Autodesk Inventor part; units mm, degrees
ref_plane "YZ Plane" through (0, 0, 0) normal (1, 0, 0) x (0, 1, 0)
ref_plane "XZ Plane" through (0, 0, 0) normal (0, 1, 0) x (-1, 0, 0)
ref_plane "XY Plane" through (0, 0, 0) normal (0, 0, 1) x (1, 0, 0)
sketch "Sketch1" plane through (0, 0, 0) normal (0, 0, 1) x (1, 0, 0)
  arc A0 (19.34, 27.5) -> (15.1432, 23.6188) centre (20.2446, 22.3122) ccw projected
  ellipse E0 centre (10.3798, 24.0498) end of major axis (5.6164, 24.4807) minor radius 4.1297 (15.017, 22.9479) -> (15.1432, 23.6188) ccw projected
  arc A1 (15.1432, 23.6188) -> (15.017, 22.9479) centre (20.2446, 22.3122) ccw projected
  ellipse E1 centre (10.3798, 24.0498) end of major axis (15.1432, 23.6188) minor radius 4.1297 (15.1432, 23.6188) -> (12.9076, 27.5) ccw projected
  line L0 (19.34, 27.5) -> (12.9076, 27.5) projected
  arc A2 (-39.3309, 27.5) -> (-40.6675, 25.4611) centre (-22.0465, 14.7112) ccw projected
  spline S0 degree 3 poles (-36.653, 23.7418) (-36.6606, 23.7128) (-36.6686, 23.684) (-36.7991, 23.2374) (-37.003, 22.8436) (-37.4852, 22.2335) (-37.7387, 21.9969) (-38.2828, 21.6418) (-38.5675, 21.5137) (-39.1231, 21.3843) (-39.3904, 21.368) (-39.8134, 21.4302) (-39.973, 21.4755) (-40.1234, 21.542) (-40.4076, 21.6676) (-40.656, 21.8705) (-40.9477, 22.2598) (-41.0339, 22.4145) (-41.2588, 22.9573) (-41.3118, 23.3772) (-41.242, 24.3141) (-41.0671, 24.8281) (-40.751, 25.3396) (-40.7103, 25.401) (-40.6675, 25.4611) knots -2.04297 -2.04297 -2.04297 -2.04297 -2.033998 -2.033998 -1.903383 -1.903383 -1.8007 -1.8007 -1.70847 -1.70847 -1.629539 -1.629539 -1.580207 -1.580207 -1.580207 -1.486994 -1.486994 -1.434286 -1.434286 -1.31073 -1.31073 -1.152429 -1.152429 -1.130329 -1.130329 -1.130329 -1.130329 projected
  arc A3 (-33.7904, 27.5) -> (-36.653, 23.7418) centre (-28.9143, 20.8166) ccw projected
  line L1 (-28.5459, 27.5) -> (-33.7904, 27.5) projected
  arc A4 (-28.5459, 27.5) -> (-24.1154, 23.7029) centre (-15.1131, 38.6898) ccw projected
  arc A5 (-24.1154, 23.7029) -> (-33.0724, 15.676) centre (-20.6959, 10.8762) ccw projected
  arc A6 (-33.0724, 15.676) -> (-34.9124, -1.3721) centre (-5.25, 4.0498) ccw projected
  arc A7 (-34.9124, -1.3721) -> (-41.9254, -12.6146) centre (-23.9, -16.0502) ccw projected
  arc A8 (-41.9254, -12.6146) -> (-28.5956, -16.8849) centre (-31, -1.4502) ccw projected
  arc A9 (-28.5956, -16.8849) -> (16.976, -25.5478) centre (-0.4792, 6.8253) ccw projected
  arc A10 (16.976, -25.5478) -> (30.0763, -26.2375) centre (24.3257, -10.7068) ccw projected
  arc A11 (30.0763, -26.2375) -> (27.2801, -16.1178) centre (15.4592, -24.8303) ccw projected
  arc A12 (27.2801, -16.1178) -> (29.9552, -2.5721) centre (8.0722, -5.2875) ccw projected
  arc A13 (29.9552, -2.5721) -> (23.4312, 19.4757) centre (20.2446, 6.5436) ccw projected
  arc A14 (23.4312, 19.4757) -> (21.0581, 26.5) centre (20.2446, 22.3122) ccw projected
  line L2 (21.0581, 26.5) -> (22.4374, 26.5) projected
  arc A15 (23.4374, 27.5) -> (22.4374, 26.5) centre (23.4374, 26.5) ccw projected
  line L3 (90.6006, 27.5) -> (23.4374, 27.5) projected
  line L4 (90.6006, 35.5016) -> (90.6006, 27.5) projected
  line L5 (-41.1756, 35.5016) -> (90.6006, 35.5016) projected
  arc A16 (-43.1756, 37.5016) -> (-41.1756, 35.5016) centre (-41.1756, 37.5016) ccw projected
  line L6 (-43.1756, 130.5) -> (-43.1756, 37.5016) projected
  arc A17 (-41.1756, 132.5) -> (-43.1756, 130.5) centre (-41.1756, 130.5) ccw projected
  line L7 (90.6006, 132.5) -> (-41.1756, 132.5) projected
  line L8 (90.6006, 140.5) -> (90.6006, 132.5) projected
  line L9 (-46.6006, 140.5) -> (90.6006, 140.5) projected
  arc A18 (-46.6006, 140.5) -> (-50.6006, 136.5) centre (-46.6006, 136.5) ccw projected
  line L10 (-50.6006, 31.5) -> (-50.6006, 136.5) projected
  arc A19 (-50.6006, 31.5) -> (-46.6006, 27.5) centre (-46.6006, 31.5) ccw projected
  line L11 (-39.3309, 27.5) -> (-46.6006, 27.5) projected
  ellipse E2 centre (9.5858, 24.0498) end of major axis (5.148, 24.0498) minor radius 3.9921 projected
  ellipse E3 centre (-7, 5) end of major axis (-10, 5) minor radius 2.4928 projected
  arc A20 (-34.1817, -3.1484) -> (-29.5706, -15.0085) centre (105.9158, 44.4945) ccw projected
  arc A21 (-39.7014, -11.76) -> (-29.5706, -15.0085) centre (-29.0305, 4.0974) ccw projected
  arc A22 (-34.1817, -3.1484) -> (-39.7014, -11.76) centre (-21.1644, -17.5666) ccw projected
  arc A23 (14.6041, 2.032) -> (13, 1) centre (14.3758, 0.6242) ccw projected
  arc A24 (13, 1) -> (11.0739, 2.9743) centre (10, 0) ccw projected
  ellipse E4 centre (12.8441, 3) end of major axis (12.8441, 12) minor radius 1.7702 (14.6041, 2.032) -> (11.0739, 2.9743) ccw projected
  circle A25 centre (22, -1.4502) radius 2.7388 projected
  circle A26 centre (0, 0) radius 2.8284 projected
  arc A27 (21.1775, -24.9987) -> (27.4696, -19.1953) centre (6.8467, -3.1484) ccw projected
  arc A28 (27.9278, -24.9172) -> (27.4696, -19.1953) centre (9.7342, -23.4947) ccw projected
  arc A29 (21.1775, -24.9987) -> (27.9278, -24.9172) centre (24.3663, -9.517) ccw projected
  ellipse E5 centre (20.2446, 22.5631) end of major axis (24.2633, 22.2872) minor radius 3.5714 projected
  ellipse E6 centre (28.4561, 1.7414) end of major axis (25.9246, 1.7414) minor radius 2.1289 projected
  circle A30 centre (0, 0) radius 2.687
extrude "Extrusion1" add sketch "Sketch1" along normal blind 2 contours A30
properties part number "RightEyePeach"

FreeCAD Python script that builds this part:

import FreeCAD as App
import Part
import Sketcher

doc = App.newDocument("Part")
body = doc.addObject("PartDesign::Body", "Body")

sketch1 = body.newObject("Sketcher::SketchObject", "Sketch")
sketch1.AttachmentSupport = (doc.getObject("XY_Plane"), [""])
sketch1.MapMode = "FlatFace"
sketch1.addGeometry(Part.Circle(App.Vector(0, 0, 0), App.Vector(0, 0, 1), 2.7), False)
sketch1.addConstraint([
    Sketcher.Constraint("Coincident", 0, 3, -1, 1),
    Sketcher.Constraint("Diameter", 0, 5.374),
])
pad1 = body.newObject("PartDesign::Pad", "Pad")
pad1.Profile = sketch1
pad1.Length = 2

doc.recompute()
